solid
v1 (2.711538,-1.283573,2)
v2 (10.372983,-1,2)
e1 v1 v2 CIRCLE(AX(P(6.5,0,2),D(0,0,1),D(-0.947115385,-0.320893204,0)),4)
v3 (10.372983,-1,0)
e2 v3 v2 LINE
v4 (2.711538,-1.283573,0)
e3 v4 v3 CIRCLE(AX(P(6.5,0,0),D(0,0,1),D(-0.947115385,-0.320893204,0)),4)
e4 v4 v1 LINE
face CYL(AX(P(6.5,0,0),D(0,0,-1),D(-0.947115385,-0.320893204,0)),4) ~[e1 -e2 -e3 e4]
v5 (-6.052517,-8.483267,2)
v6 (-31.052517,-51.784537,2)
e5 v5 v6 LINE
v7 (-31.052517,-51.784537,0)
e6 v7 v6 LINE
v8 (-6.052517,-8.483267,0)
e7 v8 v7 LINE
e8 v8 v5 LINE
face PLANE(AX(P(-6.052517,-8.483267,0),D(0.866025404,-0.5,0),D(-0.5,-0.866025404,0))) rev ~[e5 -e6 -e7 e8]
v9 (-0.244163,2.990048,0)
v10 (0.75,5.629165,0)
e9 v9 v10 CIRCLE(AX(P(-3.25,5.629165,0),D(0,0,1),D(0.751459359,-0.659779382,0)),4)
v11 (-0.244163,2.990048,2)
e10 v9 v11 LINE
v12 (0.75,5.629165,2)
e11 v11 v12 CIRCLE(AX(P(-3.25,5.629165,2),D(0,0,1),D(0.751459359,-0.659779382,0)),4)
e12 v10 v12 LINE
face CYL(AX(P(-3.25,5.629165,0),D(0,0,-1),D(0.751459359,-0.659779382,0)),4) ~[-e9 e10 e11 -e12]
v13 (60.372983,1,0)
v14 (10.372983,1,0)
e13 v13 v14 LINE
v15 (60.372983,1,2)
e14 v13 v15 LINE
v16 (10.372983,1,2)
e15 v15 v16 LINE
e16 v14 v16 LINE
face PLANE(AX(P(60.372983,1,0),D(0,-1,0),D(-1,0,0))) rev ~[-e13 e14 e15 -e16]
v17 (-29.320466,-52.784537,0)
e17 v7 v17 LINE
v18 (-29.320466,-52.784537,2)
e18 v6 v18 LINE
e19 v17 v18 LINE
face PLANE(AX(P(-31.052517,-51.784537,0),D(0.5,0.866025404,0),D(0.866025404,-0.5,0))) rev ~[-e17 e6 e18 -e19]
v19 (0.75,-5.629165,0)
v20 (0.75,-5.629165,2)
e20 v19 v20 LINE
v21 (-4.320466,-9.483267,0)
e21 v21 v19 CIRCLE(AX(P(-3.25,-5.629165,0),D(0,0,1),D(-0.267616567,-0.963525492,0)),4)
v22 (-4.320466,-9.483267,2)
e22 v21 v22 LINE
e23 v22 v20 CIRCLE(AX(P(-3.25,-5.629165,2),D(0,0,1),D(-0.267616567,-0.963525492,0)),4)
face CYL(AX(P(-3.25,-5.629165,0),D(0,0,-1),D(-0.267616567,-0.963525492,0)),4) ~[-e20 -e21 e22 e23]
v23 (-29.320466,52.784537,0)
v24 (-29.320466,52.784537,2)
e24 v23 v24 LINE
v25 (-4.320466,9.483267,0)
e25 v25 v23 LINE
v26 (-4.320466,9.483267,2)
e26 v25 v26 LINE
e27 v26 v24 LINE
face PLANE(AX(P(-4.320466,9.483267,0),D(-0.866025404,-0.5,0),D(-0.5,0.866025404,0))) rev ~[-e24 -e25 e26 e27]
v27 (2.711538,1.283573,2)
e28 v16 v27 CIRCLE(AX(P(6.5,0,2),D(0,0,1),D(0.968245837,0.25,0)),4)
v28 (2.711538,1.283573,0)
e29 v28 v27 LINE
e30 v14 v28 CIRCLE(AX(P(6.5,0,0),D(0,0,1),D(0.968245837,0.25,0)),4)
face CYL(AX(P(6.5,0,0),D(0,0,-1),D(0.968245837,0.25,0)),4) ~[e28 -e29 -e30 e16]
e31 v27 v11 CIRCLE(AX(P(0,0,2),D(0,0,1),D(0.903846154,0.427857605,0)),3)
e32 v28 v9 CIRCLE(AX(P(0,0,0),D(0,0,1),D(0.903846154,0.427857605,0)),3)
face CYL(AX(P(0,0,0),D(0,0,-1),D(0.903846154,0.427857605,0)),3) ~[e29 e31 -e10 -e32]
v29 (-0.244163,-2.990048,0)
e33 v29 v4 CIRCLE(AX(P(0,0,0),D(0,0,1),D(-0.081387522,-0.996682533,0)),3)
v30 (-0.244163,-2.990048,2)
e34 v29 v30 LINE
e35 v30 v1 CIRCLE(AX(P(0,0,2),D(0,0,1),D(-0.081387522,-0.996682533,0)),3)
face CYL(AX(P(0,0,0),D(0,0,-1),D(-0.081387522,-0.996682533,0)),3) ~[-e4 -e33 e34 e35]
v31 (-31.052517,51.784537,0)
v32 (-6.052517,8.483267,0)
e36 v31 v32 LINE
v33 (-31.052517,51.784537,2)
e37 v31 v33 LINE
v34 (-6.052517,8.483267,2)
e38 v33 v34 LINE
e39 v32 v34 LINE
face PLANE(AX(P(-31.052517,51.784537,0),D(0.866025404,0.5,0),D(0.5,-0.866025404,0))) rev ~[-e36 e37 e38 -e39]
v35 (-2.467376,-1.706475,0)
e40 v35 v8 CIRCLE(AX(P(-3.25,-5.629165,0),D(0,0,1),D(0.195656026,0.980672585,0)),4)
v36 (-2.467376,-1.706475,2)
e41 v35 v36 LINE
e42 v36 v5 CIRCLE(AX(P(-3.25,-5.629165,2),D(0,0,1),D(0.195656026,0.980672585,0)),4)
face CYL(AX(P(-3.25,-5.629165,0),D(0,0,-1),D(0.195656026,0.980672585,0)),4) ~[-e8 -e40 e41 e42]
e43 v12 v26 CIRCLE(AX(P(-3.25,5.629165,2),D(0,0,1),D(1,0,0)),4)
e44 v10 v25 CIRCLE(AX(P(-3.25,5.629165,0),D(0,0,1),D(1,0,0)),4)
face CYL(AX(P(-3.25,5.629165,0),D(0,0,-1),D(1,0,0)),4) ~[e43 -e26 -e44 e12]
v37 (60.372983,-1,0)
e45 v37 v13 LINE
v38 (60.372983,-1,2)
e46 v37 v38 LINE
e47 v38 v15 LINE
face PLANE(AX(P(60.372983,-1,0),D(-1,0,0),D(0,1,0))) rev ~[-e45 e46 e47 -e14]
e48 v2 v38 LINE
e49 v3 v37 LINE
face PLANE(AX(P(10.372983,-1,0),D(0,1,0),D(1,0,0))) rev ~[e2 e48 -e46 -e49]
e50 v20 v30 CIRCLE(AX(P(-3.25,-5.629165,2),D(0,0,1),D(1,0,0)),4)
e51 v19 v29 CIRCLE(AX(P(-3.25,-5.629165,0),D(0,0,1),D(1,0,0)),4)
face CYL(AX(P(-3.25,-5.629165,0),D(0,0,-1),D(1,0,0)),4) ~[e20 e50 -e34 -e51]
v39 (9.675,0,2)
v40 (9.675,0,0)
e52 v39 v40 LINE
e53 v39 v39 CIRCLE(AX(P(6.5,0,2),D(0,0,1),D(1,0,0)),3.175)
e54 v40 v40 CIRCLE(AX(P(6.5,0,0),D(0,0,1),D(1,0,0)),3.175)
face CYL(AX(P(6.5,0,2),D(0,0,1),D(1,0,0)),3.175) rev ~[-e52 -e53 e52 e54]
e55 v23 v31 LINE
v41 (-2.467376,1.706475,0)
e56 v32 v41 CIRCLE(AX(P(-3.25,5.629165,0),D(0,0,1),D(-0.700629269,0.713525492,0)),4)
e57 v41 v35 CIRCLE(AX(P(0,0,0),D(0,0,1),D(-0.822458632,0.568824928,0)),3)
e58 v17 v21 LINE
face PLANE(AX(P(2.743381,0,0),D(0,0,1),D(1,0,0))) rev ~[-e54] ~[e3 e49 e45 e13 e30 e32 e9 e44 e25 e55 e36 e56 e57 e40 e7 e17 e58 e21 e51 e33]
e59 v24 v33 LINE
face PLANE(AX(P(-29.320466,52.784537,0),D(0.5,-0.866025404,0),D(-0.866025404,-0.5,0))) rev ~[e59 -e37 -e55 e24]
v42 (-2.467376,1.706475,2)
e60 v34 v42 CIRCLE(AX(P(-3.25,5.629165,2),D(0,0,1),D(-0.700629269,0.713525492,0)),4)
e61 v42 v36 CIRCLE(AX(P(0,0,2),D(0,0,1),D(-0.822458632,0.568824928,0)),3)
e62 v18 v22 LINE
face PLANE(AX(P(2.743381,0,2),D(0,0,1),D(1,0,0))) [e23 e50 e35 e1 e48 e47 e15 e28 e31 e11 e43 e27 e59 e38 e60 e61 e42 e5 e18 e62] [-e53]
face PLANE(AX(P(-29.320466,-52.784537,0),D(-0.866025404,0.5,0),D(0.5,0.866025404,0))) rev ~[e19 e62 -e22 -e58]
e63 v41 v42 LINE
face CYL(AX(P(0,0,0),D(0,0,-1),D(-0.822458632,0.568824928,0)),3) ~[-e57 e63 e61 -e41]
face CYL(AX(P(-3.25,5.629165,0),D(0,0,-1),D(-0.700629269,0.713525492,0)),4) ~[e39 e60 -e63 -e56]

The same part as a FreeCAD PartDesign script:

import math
import FreeCAD as App
import Part
import Sketcher

V = App.Vector
Q = App.Units.Quantity

doc = App.newDocument("Part")
body = doc.addObject("PartDesign::Body", "Body")

sketch1 = body.newObject("Sketcher::SketchObject", "Sketch")
sketch1.AttachmentSupport = (doc.getObject("XY_Plane"), [""])
sketch1.MapMode = "FlatFace"
sketch1.addGeometry([
    Part.ArcOfCircle(Part.Circle(V(0, 0, 0), V(0, 0, 1), 3), math.radians(25.331675), math.radians(94.668325)),
    Part.ArcOfCircle(Part.Circle(V(-3.25, 5.629165, 0), V(0, 0, 1), 4), math.radians(-41.283049), math.radians(0)),
    Part.ArcOfCircle(Part.Circle(V(-3.25, 5.629165, 0), V(0, 0, 1), 4), math.radians(0), math.radians(105.522488)),
    Part.LineSegment(V(-4.320466, 9.483267, 0), V(-29.320466, 52.784537, 0)),
    Part.LineSegment(V(-29.320466, 52.784537, 0), V(-31.052517, 51.784537, 0)),
    Part.LineSegment(V(-31.052517, 51.784537, 0), V(-6.052517, 8.483267, 0)),
    Part.ArcOfCircle(Part.Circle(V(-3.25, 5.629165, 0), V(0, 0, 1), 4), math.radians(134.477512), math.radians(281.283049)),
    Part.ArcOfCircle(Part.Circle(V(0, 0, 0), V(0, 0, 1), 3), math.radians(145.331675), math.radians(214.668325)),
    Part.ArcOfCircle(Part.Circle(V(-3.25, -5.629165, 0), V(0, 0, 1), 4), math.radians(78.716951), math.radians(225.522488)),
    Part.LineSegment(V(-6.052517, -8.483267, 0), V(-31.052517, -51.784537, 0)),
    Part.LineSegment(V(-31.052517, -51.784537, 0), V(-29.320466, -52.784537, 0)),
    Part.LineSegment(V(-29.320466, -52.784537, 0), V(-4.320466, -9.483267, 0)),
    Part.ArcOfCircle(Part.Circle(V(-3.25, -5.629165, 0), V(0, 0, 1), 4), math.radians(-105.522488), math.radians(0)),
    Part.ArcOfCircle(Part.Circle(V(-3.25, -5.629165, 0), V(0, 0, 1), 4), math.radians(0), math.radians(41.283049)),
    Part.ArcOfCircle(Part.Circle(V(0, 0, 0), V(0, 0, 1), 3), math.radians(-94.668325), math.radians(-25.331675)),
    Part.ArcOfCircle(Part.Circle(V(6.5, 0, 0), V(0, 0, 1), 4), math.radians(-161.283049), math.radians(-14.477512)),
    Part.LineSegment(V(10.372983, -1, 0), V(60.372983, -1, 0)),
    Part.LineSegment(V(60.372983, -1, 0), V(60.372983, 1, 0)),
    Part.LineSegment(V(60.372983, 1, 0), V(10.372983, 1, 0)),
    Part.ArcOfCircle(Part.Circle(V(6.5, 0, 0), V(0, 0, 1), 4), math.radians(14.477512), math.radians(161.283049)),
], False)
sketch1.addConstraint([
    Sketcher.Constraint("Coincident", 0, 2, 1, 1),
    Sketcher.Constraint("Tangent", 1, 2, 2, 1),
    Sketcher.Constraint("Coincident", 2, 2, 3, 1),
    Sketcher.Constraint("Coincident", 3, 2, 4, 1),
    Sketcher.Constraint("Coincident", 4, 2, 5, 1),
    Sketcher.Constraint("Coincident", 5, 2, 6, 1),
    Sketcher.Constraint("Coincident", 6, 2, 7, 1),
    Sketcher.Constraint("Coincident", 7, 2, 8, 1),
    Sketcher.Constraint("Coincident", 8, 2, 9, 1),
    Sketcher.Constraint("Coincident", 9, 2, 10, 1),
    Sketcher.Constraint("Coincident", 10, 2, 11, 1),
    Sketcher.Constraint("Coincident", 11, 2, 12, 1),
    Sketcher.Constraint("Tangent", 12, 2, 13, 1),
    Sketcher.Constraint("Coincident", 13, 2, 14, 1),
    Sketcher.Constraint("Coincident", 14, 2, 15, 1),
    Sketcher.Constraint("Coincident", 15, 2, 16, 1),
    Sketcher.Constraint("Coincident", 16, 2, 17, 1),
    Sketcher.Constraint("Coincident", 17, 2, 18, 1),
    Sketcher.Constraint("Coincident", 18, 2, 19, 1),
    Sketcher.Constraint("Coincident", 19, 2, 0, 1),
    Sketcher.Constraint("Horizontal", 16),
    Sketcher.Constraint("Vertical", 17),
    Sketcher.Constraint("Horizontal", 18),
    Sketcher.Constraint("Coincident", 0, 3, -1, 1),
    Sketcher.Constraint("Coincident", 7, 3, -1, 1),
    Sketcher.Constraint("Coincident", 14, 3, -1, 1),
    Sketcher.Constraint("Coincident", 6, 3, 1, 3),
    Sketcher.Constraint("Coincident", 12, 3, 8, 3),
    Sketcher.Constraint("Coincident", 19, 3, 15, 3),
    Sketcher.Constraint("Equal", 1, 2),
    Sketcher.Constraint("Equal", 2, 6),
    Sketcher.Constraint("Equal", 0, 7),
    Sketcher.Constraint("Equal", 6, 8),
    Sketcher.Constraint("Equal", 8, 12),
    Sketcher.Constraint("Equal", 12, 13),
    Sketcher.Constraint("Equal", 7, 14),
    Sketcher.Constraint("Equal", 13, 15),
    Sketcher.Constraint("Equal", 15, 19),
    Sketcher.Constraint("Symmetric", 1, 3, 8, 3, -1),
    Sketcher.Constraint("Symmetric", 4, 2, 9, 2, -1),
    Sketcher.Constraint("Symmetric", 3, 2, 10, 2, -1),
    Sketcher.Constraint("Symmetric", 15, 2, 18, 2, -1),
    Sketcher.Constraint("Perpendicular", 3, 4),
    Sketcher.Constraint("Perpendicular", 4, 5),
    Sketcher.Constraint("Perpendicular", 9, 10),
    Sketcher.Constraint("Perpendicular", 10, 11),
    Sketcher.Constraint("Horizontal", 6, 3, 1, 2),
    Sketcher.Constraint("Horizontal", 13, 3, 12, 2),
    Sketcher.Constraint("Equal", 3, 5),
    Sketcher.Constraint("Radius", 0, 3.0),
    Sketcher.Constraint("Radius", 1, 4.0),
    Sketcher.Constraint("DistanceX", 16, 1, 16, 2, 50.0),
    Sketcher.Constraint("DistanceY", 17, 1, 17, 2, 2.0),
    Sketcher.Constraint("Angle", 3, Q("120 deg")),
    Sketcher.Constraint("Distance", 3, 50.0),
    Sketcher.Constraint("Distance", 4, 2.0),
    Sketcher.Constraint("DistanceX", -1, 1, 15, 3, 6.5),
    Sketcher.Constraint("DistanceX", 1, 3, -1, 1, 3.25),
    Sketcher.Constraint("DistanceX", 13, 2, 14, 2, 2.955701),
])
pad1 = body.newObject("PartDesign::Pad", "Pad")
pad1.Profile = sketch1
pad1.Length = 2

sketch2 = body.newObject("Sketcher::SketchObject", "Sketch001")
sketch2.AttachmentSupport = (doc.getObject("XY_Plane"), [""])
sketch2.MapMode = "FlatFace"
sketch2.AttachmentOffset = App.Placement(V(0, 0, 2), App.Rotation())
sketch2.addGeometry(Part.Circle(V(6.5, 0, 0), V(0, 0, 1), 3.175), False)
sketch2.addConstraint([
    Sketcher.Constraint("PointOnObject", 0, 3, -1),
    Sketcher.Constraint("Diameter", 0, 6.35),
    Sketcher.Constraint("DistanceX", -1, 1, 0, 3, 6.5),
])
pocket1 = body.newObject("PartDesign::Pocket", "Pocket")
pocket1.Profile = sketch2
pocket1.Length = 25

doc.recompute()
